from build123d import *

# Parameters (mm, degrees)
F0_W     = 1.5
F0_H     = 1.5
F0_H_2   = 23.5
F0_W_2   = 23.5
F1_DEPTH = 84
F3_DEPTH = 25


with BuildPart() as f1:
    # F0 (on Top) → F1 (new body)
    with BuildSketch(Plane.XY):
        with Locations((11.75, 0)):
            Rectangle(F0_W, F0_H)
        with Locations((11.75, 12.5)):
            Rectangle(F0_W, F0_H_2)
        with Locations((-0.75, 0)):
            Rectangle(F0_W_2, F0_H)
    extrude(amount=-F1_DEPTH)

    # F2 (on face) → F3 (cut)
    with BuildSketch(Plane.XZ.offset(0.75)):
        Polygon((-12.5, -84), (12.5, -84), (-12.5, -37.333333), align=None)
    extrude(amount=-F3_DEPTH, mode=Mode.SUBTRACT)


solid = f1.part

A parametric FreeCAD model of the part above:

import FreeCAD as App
import Part
import Sketcher

V = App.Vector

doc = App.newDocument("Part")
body = doc.addObject("PartDesign::Body", "Body")

sketch1 = body.newObject("Sketcher::SketchObject", "Sketch")
sketch1.AttachmentSupport = (doc.getObject("XY_Plane"), [""])
sketch1.MapMode = "FlatFace"
sketch1.addGeometry(Part.LineSegment(V(12.5, -0.75, 0), V(12.5, 24.25, 0)), False)
sketch1.addGeometry(Part.LineSegment(V(12.5, 24.25, 0), V(11, 24.25, 0)), False)
sketch1.addGeometry(Part.LineSegment(V(11, 24.25, 0), V(11, 0.75, 0)), False)
sketch1.addGeometry(Part.LineSegment(V(11, 0.75, 0), V(-12.5, 0.75, 0)), False)
sketch1.addGeometry(Part.LineSegment(V(-12.5, 0.75, 0), V(-12.5, -0.75, 0)), False)
sketch1.addGeometry(Part.LineSegment(V(-12.5, -0.75, 0), V(12.5, -0.75, 0)), False)
sketch1.addConstraint(Sketcher.Constraint("Coincident", 0, 2, 1, 1))
sketch1.addConstraint(Sketcher.Constraint("Coincident", 1, 2, 2, 1))
sketch1.addConstraint(Sketcher.Constraint("Coincident", 2, 2, 3, 1))
sketch1.addConstraint(Sketcher.Constraint("Coincident", 3, 2, 4, 1))
sketch1.addConstraint(Sketcher.Constraint("Coincident", 4, 2, 5, 1))
sketch1.addConstraint(Sketcher.Constraint("Coincident", 5, 2, 0, 1))
sketch1.addConstraint(Sketcher.Constraint("Vertical", 0))
sketch1.addConstraint(Sketcher.Constraint("Horizontal", 1))
sketch1.addConstraint(Sketcher.Constraint("Vertical", 2))
sketch1.addConstraint(Sketcher.Constraint("Horizontal", 3))
sketch1.addConstraint(Sketcher.Constraint("Vertical", 4))
sketch1.addConstraint(Sketcher.Constraint("Horizontal", 5))
sketch1.addConstraint(Sketcher.Constraint("Symmetric", 3, 2, 5, 2, -1, 1))
sketch1.addConstraint(Sketcher.Constraint("Equal", 5, 0))
sketch1.addConstraint(Sketcher.Constraint("Equal", 3, 2))
sketch1.addConstraint(Sketcher.Constraint("DistanceX", 5, 1, 5, 2, 25.0))
sketch1.addConstraint(Sketcher.Constraint("DistanceX", 1, 2, 1, 1, 1.5))
pad1 = body.newObject("PartDesign::Pad", "Pad")
pad1.Profile = sketch1
pad1.Length = 84
pad1.Reversed = True

sketch2 = body.newObject("Sketcher::SketchObject", "Sketch001")
sketch2.AttachmentSupport = (doc.getObject("XZ_Plane"), [""])
sketch2.MapMode = "FlatFace"
sketch2.AttachmentOffset = App.Placement(V(0, 0, 0.75), App.Rotation())
sketch2.addGeometry(Part.LineSegment(V(-12.5, -84, 0), V(12.5, -84, 0)), False)
sketch2.addGeometry(Part.LineSegment(V(12.5, -84, 0), V(-12.5, -37.333333, 0)), False)
sketch2.addGeometry(Part.LineSegment(V(-12.5, -37.333333, 0), V(-12.5, -84, 0)), False)
sketch2.addConstraint(Sketcher.Constraint("Coincident", 0, 2, 1, 1))
sketch2.addConstraint(Sketcher.Constraint("Coincident", 1, 2, 2, 1))
sketch2.addConstraint(Sketcher.Constraint("Coincident", 2, 2, 0, 1))
sketch2.addConstraint(Sketcher.Constraint("Horizontal", 0))
sketch2.addConstraint(Sketcher.Constraint("Vertical", 2))
sketch2.addConstraint(Sketcher.Constraint("DistanceX", 0, 1, 0, 2, 25.0))
sketch2.addConstraint(Sketcher.Constraint("DistanceY", 0, 2, -1, 1, 84.0))
sketch2.addConstraint(Sketcher.Constraint("DistanceX", -1, 1, 0, 2, 12.5))
sketch2.addConstraint(Sketcher.Constraint("DistanceY", 2, 2, 2, 1, 46.666667))
pocket1 = body.newObject("PartDesign::Pocket", "Pocket")
pocket1.Profile = sketch2
pocket1.Length = 25

doc.recompute()
